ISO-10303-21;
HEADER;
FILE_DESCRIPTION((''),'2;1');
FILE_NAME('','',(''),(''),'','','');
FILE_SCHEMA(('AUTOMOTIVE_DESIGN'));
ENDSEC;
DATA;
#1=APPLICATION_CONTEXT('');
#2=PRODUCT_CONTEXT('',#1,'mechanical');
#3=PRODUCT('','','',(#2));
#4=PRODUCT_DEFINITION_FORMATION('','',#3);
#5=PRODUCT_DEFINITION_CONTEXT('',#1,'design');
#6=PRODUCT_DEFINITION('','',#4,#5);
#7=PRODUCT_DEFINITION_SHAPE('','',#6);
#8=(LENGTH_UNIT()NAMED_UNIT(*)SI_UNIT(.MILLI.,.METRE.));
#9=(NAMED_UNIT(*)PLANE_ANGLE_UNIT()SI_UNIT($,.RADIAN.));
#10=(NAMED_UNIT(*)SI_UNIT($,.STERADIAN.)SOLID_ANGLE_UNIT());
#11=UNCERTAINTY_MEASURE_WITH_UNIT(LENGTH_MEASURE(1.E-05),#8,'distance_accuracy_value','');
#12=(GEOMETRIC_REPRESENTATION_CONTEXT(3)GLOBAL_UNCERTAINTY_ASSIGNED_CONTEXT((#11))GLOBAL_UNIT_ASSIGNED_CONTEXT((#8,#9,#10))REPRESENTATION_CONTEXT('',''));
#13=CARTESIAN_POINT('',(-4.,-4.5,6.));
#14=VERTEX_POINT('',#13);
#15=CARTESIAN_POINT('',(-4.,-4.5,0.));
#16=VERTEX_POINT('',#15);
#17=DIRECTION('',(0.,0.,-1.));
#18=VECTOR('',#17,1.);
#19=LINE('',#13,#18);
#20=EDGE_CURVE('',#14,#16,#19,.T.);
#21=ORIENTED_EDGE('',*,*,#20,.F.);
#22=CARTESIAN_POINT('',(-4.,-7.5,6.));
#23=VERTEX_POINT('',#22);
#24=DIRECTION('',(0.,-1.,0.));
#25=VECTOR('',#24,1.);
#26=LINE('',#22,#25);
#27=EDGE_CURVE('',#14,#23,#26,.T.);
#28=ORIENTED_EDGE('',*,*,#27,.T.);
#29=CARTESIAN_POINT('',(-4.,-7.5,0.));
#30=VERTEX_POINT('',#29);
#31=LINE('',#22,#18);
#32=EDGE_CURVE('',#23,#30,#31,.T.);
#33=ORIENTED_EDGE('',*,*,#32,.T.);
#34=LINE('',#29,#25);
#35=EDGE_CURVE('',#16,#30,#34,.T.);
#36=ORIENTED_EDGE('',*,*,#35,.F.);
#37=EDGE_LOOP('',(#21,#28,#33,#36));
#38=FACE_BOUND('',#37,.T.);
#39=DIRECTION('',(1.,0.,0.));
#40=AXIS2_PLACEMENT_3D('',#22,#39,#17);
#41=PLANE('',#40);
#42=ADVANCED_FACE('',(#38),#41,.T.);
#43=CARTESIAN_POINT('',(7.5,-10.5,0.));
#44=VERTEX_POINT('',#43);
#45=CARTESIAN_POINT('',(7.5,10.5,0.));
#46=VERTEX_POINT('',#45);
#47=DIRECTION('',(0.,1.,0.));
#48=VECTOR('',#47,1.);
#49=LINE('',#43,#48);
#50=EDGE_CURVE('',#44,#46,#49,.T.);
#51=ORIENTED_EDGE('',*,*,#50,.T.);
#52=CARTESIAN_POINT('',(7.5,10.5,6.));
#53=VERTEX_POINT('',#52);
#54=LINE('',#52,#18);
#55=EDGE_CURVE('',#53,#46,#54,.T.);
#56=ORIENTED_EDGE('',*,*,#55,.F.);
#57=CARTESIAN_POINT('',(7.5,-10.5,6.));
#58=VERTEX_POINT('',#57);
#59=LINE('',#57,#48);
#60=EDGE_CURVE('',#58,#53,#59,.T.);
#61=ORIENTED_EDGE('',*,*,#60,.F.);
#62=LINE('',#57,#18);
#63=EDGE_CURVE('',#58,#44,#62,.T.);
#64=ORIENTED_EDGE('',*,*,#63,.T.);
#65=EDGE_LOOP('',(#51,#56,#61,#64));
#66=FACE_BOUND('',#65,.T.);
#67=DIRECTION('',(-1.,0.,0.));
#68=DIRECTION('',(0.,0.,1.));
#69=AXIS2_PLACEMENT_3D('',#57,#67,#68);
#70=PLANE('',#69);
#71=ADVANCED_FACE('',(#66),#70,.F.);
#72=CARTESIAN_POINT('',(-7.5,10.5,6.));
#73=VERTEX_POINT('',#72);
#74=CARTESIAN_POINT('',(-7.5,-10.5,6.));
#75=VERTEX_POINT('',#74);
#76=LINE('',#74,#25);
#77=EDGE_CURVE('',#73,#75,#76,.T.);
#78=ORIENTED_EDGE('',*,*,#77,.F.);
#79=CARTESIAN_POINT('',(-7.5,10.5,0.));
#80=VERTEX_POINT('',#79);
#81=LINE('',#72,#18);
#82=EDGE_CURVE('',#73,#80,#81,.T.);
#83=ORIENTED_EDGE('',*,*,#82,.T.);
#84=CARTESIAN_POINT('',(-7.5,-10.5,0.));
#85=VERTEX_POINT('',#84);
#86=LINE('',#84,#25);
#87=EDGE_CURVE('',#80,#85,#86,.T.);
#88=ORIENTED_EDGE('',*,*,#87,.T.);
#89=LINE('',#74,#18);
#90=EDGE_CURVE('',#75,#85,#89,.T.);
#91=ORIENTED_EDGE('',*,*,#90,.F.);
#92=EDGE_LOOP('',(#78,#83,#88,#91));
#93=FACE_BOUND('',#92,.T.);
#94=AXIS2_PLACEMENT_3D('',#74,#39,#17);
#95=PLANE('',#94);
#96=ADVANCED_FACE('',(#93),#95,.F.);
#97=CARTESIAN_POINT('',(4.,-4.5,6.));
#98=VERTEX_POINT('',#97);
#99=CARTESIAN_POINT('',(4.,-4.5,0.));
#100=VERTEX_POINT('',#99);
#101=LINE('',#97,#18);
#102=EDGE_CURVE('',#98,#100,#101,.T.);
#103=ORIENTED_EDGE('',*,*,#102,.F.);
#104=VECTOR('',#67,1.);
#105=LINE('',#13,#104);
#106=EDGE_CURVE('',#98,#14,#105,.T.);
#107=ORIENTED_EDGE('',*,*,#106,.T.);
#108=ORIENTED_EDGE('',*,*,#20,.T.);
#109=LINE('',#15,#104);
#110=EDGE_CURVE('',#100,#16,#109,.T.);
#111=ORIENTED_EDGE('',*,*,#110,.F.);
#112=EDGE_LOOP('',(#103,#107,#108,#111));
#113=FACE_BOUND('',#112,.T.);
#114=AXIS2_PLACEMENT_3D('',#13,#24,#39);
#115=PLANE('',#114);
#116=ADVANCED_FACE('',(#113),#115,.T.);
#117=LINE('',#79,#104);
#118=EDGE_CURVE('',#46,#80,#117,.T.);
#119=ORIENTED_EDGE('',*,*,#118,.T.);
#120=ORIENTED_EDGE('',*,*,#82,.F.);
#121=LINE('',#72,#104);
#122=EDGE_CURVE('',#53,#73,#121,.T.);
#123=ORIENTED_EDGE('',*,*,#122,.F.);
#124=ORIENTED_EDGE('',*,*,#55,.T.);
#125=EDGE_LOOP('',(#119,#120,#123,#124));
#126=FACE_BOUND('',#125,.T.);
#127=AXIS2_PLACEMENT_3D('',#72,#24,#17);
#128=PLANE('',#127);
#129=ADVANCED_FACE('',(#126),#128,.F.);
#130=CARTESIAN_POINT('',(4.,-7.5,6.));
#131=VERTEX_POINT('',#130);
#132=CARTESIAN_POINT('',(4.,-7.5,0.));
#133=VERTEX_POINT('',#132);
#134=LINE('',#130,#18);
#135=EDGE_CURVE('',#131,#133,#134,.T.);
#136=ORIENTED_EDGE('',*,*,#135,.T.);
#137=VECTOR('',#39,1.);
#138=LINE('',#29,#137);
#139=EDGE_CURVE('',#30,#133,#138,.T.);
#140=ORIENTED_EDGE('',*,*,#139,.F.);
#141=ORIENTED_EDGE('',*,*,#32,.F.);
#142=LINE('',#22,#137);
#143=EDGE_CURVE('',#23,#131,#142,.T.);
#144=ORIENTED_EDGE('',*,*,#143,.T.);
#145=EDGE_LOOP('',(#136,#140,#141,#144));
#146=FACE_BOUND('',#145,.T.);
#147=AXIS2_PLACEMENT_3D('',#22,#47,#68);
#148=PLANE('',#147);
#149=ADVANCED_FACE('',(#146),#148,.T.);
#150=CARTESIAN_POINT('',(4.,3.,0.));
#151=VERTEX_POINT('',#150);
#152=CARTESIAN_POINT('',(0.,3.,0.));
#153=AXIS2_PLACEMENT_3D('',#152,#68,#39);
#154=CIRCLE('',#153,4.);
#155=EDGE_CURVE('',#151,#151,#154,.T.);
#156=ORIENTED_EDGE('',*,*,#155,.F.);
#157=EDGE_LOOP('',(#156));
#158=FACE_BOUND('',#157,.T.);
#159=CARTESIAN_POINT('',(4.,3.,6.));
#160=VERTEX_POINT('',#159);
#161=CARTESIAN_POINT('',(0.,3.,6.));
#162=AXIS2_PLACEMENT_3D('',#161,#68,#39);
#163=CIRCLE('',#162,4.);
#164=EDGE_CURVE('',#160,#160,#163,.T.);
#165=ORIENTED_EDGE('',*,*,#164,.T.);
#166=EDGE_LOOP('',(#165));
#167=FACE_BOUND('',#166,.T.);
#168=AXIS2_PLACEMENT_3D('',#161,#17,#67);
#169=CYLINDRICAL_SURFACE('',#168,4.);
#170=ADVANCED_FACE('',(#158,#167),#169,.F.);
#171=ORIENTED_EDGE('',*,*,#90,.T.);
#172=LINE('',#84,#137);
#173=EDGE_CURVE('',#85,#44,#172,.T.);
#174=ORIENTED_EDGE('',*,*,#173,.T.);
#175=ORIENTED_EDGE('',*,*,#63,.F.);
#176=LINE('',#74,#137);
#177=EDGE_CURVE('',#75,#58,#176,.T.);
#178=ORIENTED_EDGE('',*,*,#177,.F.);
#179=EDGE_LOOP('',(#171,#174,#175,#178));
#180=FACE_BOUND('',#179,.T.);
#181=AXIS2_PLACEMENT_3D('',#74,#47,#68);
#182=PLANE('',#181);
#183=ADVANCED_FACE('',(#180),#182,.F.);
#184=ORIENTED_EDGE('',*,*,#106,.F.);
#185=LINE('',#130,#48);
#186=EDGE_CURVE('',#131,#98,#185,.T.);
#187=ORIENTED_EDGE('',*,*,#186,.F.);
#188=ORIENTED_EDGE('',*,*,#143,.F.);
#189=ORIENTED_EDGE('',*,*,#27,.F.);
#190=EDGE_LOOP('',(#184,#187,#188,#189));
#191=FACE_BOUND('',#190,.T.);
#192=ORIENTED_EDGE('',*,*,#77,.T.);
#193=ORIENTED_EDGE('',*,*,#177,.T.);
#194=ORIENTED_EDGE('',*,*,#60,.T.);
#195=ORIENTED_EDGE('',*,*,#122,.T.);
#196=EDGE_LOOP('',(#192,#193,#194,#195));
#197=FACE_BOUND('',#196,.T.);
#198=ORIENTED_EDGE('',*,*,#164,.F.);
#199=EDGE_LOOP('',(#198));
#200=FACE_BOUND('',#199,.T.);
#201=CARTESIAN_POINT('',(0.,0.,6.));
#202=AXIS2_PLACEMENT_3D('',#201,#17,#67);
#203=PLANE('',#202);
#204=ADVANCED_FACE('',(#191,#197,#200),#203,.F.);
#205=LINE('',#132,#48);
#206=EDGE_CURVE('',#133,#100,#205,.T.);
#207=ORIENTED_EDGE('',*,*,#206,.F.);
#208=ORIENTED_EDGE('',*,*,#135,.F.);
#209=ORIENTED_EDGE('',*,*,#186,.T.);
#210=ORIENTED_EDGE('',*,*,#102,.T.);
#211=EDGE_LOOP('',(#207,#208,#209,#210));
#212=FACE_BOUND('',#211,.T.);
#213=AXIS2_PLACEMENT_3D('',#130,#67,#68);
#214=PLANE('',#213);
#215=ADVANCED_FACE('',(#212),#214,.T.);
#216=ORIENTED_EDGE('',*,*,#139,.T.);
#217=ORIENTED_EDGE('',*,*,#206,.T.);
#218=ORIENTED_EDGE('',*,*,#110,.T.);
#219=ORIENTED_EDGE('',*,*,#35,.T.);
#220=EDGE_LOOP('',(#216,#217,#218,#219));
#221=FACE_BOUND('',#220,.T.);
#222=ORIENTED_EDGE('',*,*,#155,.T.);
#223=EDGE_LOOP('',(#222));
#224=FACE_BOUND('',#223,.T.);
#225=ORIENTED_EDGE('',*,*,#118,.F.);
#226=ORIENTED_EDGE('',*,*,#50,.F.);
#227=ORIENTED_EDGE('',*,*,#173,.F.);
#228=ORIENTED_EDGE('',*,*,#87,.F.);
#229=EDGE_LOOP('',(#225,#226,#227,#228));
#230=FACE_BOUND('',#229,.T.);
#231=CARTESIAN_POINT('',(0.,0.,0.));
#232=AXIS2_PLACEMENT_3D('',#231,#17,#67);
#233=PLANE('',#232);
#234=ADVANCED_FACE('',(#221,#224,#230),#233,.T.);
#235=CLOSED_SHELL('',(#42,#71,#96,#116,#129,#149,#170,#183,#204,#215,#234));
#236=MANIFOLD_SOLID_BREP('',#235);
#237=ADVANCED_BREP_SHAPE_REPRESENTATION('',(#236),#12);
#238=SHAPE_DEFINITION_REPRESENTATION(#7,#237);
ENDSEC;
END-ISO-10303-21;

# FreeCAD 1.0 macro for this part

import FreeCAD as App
import Part
import Sketcher
from FreeCAD import Vector

doc = App.newDocument("Part")
body = doc.addObject("PartDesign::Body", "Body")

sketch1 = body.newObject("Sketcher::SketchObject", "Sketch")
sketch1.AttachmentSupport = (doc.getObject("XY_Plane"), [""])
sketch1.MapMode = "FlatFace"
sketch1.addGeometry([
    Part.LineSegment(Vector(-7.5, 10.5, 0), Vector(-7.5, -10.5, 0)),
    Part.LineSegment(Vector(-7.5, -10.5, 0), Vector(7.5, -10.5, 0)),
    Part.LineSegment(Vector(7.5, -10.5, 0), Vector(7.5, 10.5, 0)),
    Part.LineSegment(Vector(7.5, 10.5, 0), Vector(-7.5, 10.5, 0)),
    Part.LineSegment(Vector(4, -7.5, 0), Vector(-4, -7.5, 0)),
    Part.LineSegment(Vector(-4, -7.5, 0), Vector(-4, -4.5, 0)),
    Part.LineSegment(Vector(-4, -4.5, 0), Vector(4, -4.5, 0)),
    Part.LineSegment(Vector(4, -4.5, 0), Vector(4, -7.5, 0)),
    Part.Circle(Vector(0, 3, 0), Vector(0, 0, 1), 4),
], False)
sketch1.addConstraint([
    Sketcher.Constraint("Coincident", 0, 2, 1, 1),
    Sketcher.Constraint("Coincident", 1, 2, 2, 1),
    Sketcher.Constraint("Coincident", 2, 2, 3, 1),
    Sketcher.Constraint("Coincident", 3, 2, 0, 1),
    Sketcher.Constraint("Coincident", 4, 2, 5, 1),
    Sketcher.Constraint("Coincident", 5, 2, 6, 1),
    Sketcher.Constraint("Coincident", 6, 2, 7, 1),
    Sketcher.Constraint("Coincident", 7, 2, 4, 1),
    Sketcher.Constraint("Vertical", 0),
    Sketcher.Constraint("Horizontal", 1),
    Sketcher.Constraint("Vertical", 2),
    Sketcher.Constraint("Horizontal", 3),
    Sketcher.Constraint("Horizontal", 4),
    Sketcher.Constraint("Vertical", 5),
    Sketcher.Constraint("Horizontal", 6),
    Sketcher.Constraint("Vertical", 7),
    Sketcher.Constraint("Symmetric", 0, 2, 2, 2, -1, 1),
    Sketcher.Constraint("PointOnObject", 8, 3, -2),
    Sketcher.Constraint("Diameter", 8, 8.0),
    Sketcher.Constraint("DistanceX", 1, 1, 1, 2, 15.0),
    Sketcher.Constraint("DistanceX", 4, 2, 4, 1, 8.0),
    Sketcher.Constraint("DistanceY", 0, 2, 0, 1, 21.0),
    Sketcher.Constraint("DistanceY", 5, 1, 5, 2, 3.0),
    Sketcher.Constraint("DistanceY", -1, 1, 8, 3, 3.0),
    Sketcher.Constraint("DistanceX", 4, 2, -1, 1, 4.0),
    Sketcher.Constraint("DistanceY", 0, 2, 4, 2, 3.0),
])
pad1 = body.newObject("PartDesign::Pad", "Pad")
pad1.Profile = sketch1
pad1.Length = 6

doc.recompute()
